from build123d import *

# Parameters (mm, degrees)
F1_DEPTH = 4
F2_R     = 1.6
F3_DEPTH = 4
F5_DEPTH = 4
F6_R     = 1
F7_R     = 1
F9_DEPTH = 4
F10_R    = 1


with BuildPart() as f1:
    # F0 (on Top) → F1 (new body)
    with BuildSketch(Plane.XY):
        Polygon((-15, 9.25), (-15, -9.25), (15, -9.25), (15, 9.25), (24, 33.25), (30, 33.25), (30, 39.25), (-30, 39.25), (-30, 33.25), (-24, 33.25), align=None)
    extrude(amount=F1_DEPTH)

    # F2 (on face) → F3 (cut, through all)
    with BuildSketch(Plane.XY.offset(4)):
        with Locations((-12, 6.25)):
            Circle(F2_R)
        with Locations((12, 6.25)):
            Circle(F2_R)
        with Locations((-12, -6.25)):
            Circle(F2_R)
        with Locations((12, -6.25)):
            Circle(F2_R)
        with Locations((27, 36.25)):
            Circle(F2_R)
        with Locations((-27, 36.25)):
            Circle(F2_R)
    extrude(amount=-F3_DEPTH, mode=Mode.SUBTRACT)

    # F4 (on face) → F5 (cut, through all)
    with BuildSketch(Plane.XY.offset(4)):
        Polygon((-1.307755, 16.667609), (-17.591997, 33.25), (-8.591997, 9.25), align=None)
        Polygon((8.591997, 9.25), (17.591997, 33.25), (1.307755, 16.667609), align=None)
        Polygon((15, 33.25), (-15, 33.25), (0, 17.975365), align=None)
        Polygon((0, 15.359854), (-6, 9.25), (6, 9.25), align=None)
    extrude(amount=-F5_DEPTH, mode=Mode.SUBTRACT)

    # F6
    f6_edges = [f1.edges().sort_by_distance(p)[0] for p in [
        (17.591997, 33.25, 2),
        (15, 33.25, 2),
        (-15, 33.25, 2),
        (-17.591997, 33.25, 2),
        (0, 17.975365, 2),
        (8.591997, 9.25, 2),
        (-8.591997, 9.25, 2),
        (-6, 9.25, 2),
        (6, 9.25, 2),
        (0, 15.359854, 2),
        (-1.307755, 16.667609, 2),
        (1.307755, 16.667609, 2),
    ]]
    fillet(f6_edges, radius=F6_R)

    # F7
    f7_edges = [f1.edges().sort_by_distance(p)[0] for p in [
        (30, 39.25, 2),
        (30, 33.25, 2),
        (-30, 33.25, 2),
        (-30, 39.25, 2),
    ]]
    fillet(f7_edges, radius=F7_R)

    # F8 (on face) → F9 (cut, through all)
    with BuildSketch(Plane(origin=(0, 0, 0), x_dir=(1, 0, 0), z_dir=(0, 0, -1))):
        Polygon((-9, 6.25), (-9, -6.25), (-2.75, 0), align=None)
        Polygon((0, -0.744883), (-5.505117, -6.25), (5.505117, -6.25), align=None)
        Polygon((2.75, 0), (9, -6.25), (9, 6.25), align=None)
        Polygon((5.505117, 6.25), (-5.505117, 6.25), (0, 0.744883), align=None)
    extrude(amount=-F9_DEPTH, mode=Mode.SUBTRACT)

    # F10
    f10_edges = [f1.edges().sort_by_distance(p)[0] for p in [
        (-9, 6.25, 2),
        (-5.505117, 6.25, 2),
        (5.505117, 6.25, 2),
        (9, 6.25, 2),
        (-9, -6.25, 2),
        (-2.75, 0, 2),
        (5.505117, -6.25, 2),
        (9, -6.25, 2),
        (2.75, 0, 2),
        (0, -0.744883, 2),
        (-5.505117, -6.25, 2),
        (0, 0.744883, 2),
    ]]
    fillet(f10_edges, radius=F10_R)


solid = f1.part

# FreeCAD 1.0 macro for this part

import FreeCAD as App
import Part
import Sketcher


def edges_at(feature, points):
    """Names of the edges that pass closest to the given points."""
    edges = feature.Shape.Edges
    near = lambda p: min(range(len(edges)), key=lambda i: edges[i].distToShape(Part.Vertex(*p))[0])
    return sorted({f"Edge{near(p) + 1}" for p in points})

doc = App.newDocument("Part")
body = doc.addObject("PartDesign::Body", "Body")

# Sketch on XY plane
sketch1 = body.newObject("Sketcher::SketchObject", "Sketch")
sketch1.AttachmentSupport = (doc.getObject("XY_Plane"), [""])
sketch1.MapMode = "FlatFace"
sketch1.addGeometry(Part.LineSegment(App.Vector(-15, 9, 0), App.Vector(-15, -9, 0)), False)
sketch1.addGeometry(Part.LineSegment(App.Vector(-15, -9, 0), App.Vector(15, -9, 0)), False)
sketch1.addGeometry(Part.LineSegment(App.Vector(15, -9, 0), App.Vector(15, 9, 0)), False)
sketch1.addGeometry(Part.LineSegment(App.Vector(15, 9, 0), App.Vector(24, 33, 0)), False)
sketch1.addGeometry(Part.LineSegment(App.Vector(24, 33, 0), App.Vector(30, 33, 0)), False)
sketch1.addGeometry(Part.LineSegment(App.Vector(30, 33, 0), App.Vector(30, 39, 0)), False)
sketch1.addGeometry(Part.LineSegment(App.Vector(30, 39, 0), App.Vector(-30, 39, 0)), False)
sketch1.addGeometry(Part.LineSegment(App.Vector(-30, 39, 0), App.Vector(-30, 33, 0)), False)
sketch1.addGeometry(Part.LineSegment(App.Vector(-30, 33, 0), App.Vector(-24, 33, 0)), False)
sketch1.addGeometry(Part.LineSegment(App.Vector(-24, 33, 0), App.Vector(-15, 9, 0)), False)
sketch1.addConstraint(Sketcher.Constraint("Coincident", 0, 2, 1, 1))
sketch1.addConstraint(Sketcher.Constraint("Coincident", 1, 2, 2, 1))
sketch1.addConstraint(Sketcher.Constraint("Coincident", 2, 2, 3, 1))
sketch1.addConstraint(Sketcher.Constraint("Coincident", 3, 2, 4, 1))
sketch1.addConstraint(Sketcher.Constraint("Coincident", 4, 2, 5, 1))
sketch1.addConstraint(Sketcher.Constraint("Coincident", 5, 2, 6, 1))
sketch1.addConstraint(Sketcher.Constraint("Coincident", 6, 2, 7, 1))
sketch1.addConstraint(Sketcher.Constraint("Coincident", 7, 2, 8, 1))
sketch1.addConstraint(Sketcher.Constraint("Coincident", 8, 2, 9, 1))
sketch1.addConstraint(Sketcher.Constraint("Coincident", 9, 2, 0, 1))
sketch1.addConstraint(Sketcher.Constraint("Vertical", 0))
sketch1.addConstraint(Sketcher.Constraint("Horizontal", 1))
sketch1.addConstraint(Sketcher.Constraint("Vertical", 2))
sketch1.addConstraint(Sketcher.Constraint("Horizontal", 4))
sketch1.addConstraint(Sketcher.Constraint("Vertical", 5))
sketch1.addConstraint(Sketcher.Constraint("Horizontal", 6))
sketch1.addConstraint(Sketcher.Constraint("Vertical", 7))
sketch1.addConstraint(Sketcher.Constraint("Horizontal", 8))
sketch1.addConstraint(Sketcher.Constraint("Symmetric", 0, 2, 2, 2, -1, 1))
sketch1.addConstraint(Sketcher.Constraint("Symmetric", 4, 2, 7, 2, -2))
sketch1.addConstraint(Sketcher.Constraint("Horizontal", 2, 2, 9, 2))
sketch1.addConstraint(Sketcher.Constraint("Equal", 4, 8))
sketch1.addConstraint(Sketcher.Constraint("Equal", 8, 5))
sketch1.addConstraint(Sketcher.Constraint("DistanceX", 1, 1, 1, 2, 30.0))
sketch1.addConstraint(Sketcher.Constraint("DistanceX", 4, 1, 4, 2, 6.0))
sketch1.addConstraint(Sketcher.Constraint("DistanceX", 6, 2, 6, 1, 60.0))
sketch1.addConstraint(Sketcher.Constraint("DistanceY", 0, 2, 0, 1, 18.5))
sketch1.addConstraint(Sketcher.Constraint("DistanceY", 2, 2, 3, 2, 24.0))
pad1 = body.newObject("PartDesign::Pad", "Pad")
pad1.Profile = sketch1
pad1.Length = 4

# Sketch on XY plane
sketch2 = body.newObject("Sketcher::SketchObject", "Sketch001")
sketch2.AttachmentSupport = (doc.getObject("XY_Plane"), [""])
sketch2.MapMode = "FlatFace"
sketch2.AttachmentOffset = App.Placement(App.Vector(0, 0, 4), App.Rotation())
sketch2.addGeometry(Part.Circle(App.Vector(-12, 6.2, 0), App.Vector(0, 0, 1), 1.6), False)
sketch2.addGeometry(Part.Circle(App.Vector(12, 6.2, 0), App.Vector(0, 0, 1), 1.6), False)
sketch2.addGeometry(Part.Circle(App.Vector(-12, -6.2, 0), App.Vector(0, 0, 1), 1.6), False)
sketch2.addGeometry(Part.Circle(App.Vector(12, -6.2, 0), App.Vector(0, 0, 1), 1.6), False)
sketch2.addGeometry(Part.Circle(App.Vector(27, 36.2, 0), App.Vector(0, 0, 1), 1.6), False)
sketch2.addGeometry(Part.Circle(App.Vector(-27, 36.2, 0), App.Vector(0, 0, 1), 1.6), False)
sketch2.addConstraint(Sketcher.Constraint("Equal", 0, 1))
sketch2.addConstraint(Sketcher.Constraint("Equal", 1, 2))
sketch2.addConstraint(Sketcher.Constraint("Equal", 2, 3))
sketch2.addConstraint(Sketcher.Constraint("Equal", 3, 4))
sketch2.addConstraint(Sketcher.Constraint("Equal", 4, 5))
sketch2.addConstraint(Sketcher.Constraint("Symmetric", 1, 3, 2, 3, -1, 1))
sketch2.addConstraint(Sketcher.Constraint("Symmetric", 0, 3, 3, 3, -1, 1))
sketch2.addConstraint(Sketcher.Constraint("Symmetric", 0, 3, 1, 3, -2))
sketch2.addConstraint(Sketcher.Constraint("Symmetric", 4, 3, 5, 3, -2))
sketch2.addConstraint(Sketcher.Constraint("Diameter", 0, 3.2))
sketch2.addConstraint(Sketcher.Constraint("DistanceX", 0, 3, -1, 1, 12.0))
sketch2.addConstraint(Sketcher.Constraint("DistanceX", -1, 1, 4, 3, 27.0))
sketch2.addConstraint(Sketcher.Constraint("DistanceY", 1, 3, 4, 3, 30.0))
sketch2.addConstraint(Sketcher.Constraint("DistanceY", 2, 3, 0, 3, 12.5))
pocket1 = body.newObject("PartDesign::Pocket", "Pocket")
pocket1.Profile = sketch2
pocket1.Type = "ThroughAll"

# Sketch on XY plane
sketch3 = body.newObject("Sketcher::SketchObject", "Sketch002")
sketch3.AttachmentSupport = (doc.getObject("XY_Plane"), [""])
sketch3.MapMode = "FlatFace"
sketch3.AttachmentOffset = App.Placement(App.Vector(0, 0, 4), App.Rotation())
sketch3.addGeometry(Part.LineSegment(App.Vector(-1, 17, 0), App.Vector(-18, 33, 0)), False)
sketch3.addGeometry(Part.LineSegment(App.Vector(-18, 33, 0), App.Vector(-9, 9, 0)), False)
sketch3.addGeometry(Part.LineSegment(App.Vector(-9, 9, 0), App.Vector(-1, 17, 0)), False)
sketch3.addGeometry(Part.LineSegment(App.Vector(9, 9, 0), App.Vector(18, 33, 0)), False)
sketch3.addGeometry(Part.LineSegment(App.Vector(18, 33, 0), App.Vector(1, 17, 0)), False)
sketch3.addGeometry(Part.LineSegment(App.Vector(1, 17, 0), App.Vector(9, 9, 0)), False)
sketch3.addGeometry(Part.LineSegment(App.Vector(15, 33, 0), App.Vector(-15, 33, 0)), False)
sketch3.addGeometry(Part.LineSegment(App.Vector(-15, 33, 0), App.Vector(0, 18, 0)), False)
sketch3.addGeometry(Part.LineSegment(App.Vector(0, 18, 0), App.Vector(15, 33, 0)), False)
sketch3.addGeometry(Part.LineSegment(App.Vector(0, 15, 0), App.Vector(-6, 9, 0)), False)
sketch3.addGeometry(Part.LineSegment(App.Vector(-6, 9, 0), App.Vector(6, 9, 0)), False)
sketch3.addGeometry(Part.LineSegment(App.Vector(6, 9, 0), App.Vector(0, 15, 0)), False)
sketch3.addConstraint(Sketcher.Constraint("Coincident", 0, 2, 1, 1))
sketch3.addConstraint(Sketcher.Constraint("Coincident", 1, 2, 2, 1))
sketch3.addConstraint(Sketcher.Constraint("Coincident", 2, 2, 0, 1))
sketch3.addConstraint(Sketcher.Constraint("Coincident", 3, 2, 4, 1))
sketch3.addConstraint(Sketcher.Constraint("Coincident", 4, 2, 5, 1))
sketch3.addConstraint(Sketcher.Constraint("Coincident", 5, 2, 3, 1))
sketch3.addConstraint(Sketcher.Constraint("Coincident", 6, 2, 7, 1))
sketch3.addConstraint(Sketcher.Constraint("Coincident", 7, 2, 8, 1))
sketch3.addConstraint(Sketcher.Constraint("Coincident", 8, 2, 6, 1))
sketch3.addConstraint(Sketcher.Constraint("Coincident", 9, 2, 10, 1))
sketch3.addConstraint(Sketcher.Constraint("Coincident", 10, 2, 11, 1))
sketch3.addConstraint(Sketcher.Constraint("Coincident", 11, 2, 9, 1))
sketch3.addConstraint(Sketcher.Constraint("Horizontal", 6))
sketch3.addConstraint(Sketcher.Constraint("Horizontal", 10))
sketch3.addConstraint(Sketcher.Constraint("Symmetric", 0, 2, 3, 2, -2))
sketch3.addConstraint(Sketcher.Constraint("Symmetric", 2, 2, 4, 2, -2))
sketch3.addConstraint(Sketcher.Constraint("Symmetric", 1, 2, 5, 2, -2))
sketch3.addConstraint(Sketcher.Constraint("PointOnObject", 7, 2, -2))
sketch3.addConstraint(Sketcher.Constraint("PointOnObject", 11, 2, -2))
sketch3.addConstraint(Sketcher.Constraint("Parallel", 2, 4))
sketch3.addConstraint(Sketcher.Constraint("Parallel", 5, 7))
sketch3.addConstraint(Sketcher.Constraint("Parallel", 4, 8))
sketch3.addConstraint(Sketcher.Constraint("Parallel", 8, 9))
sketch3.addConstraint(Sketcher.Constraint("Parallel", 7, 11))
sketch3.addConstraint(Sketcher.Constraint("Horizontal", 3, 2, 6, 2))
sketch3.addConstraint(Sketcher.Constraint("Horizontal", 5, 2, 9, 2))
sketch3.addConstraint(Sketcher.Constraint("DistanceX", 6, 2, 6, 1, 30.0))
sketch3.addConstraint(Sketcher.Constraint("DistanceX", 10, 1, 10, 2, 12.0))
sketch3.addConstraint(Sketcher.Constraint("DistanceX", 0, 2, 1, 2, 9.0))
sketch3.addConstraint(Sketcher.Constraint("DistanceY", 1, 2, 0, 2, 24.0))
sketch3.addConstraint(Sketcher.Constraint("DistanceY", -1, 1, 0, 2, 33.25))
sketch3.addConstraint(Sketcher.Constraint("Distance", 7, 21.408281))
sketch3.addConstraint(Sketcher.Constraint("DistanceX", 2, 2, 3, 2, 18.899752))
pocket2 = body.newObject("PartDesign::Pocket", "Pocket001")
pocket2.Profile = sketch3
pocket2.Type = "ThroughAll"
doc.recompute()

fillet = body.newObject("PartDesign::Fillet", "Fillet")
fillet.Base = (pocket2, edges_at(pocket2, [
    (17.592, 33.25, 2),
    (15, 33.25, 2),
    (-15, 33.25, 2),
    (-17.592, 33.25, 2),
    (0, 17.975, 2),
    (8.592, 9.25, 2),
    (-8.592, 9.25, 2),
    (-6, 9.25, 2),
    (6, 9.25, 2),
    (0, 15.36, 2),
    (-1.308, 16.668, 2),
    (1.308, 16.668, 2),
]))
fillet.Radius = 1
doc.recompute()

fillet2 = body.newObject("PartDesign::Fillet", "Fillet001")
fillet2.Base = (fillet, edges_at(fillet, [
    (30, 39.25, 2),
    (30, 33.25, 2),
    (-30, 33.25, 2),
    (-30, 39.25, 2),
]))
fillet2.Radius = 1

# Sketch on XY plane
sketch4 = body.newObject("Sketcher::SketchObject", "Sketch003")
sketch4.AttachmentSupport = (doc.getObject("XY_Plane"), [""])
sketch4.MapMode = "FlatFace"
sketch4.addGeometry(Part.LineSegment(App.Vector(-9, -6, 0), App.Vector(-9, 6, 0)), False)
sketch4.addGeometry(Part.LineSegment(App.Vector(-9, 6, 0), App.Vector(-3, 0, 0)), False)
sketch4.addGeometry(Part.LineSegment(App.Vector(-3, 0, 0), App.Vector(-9, -6, 0)), False)
sketch4.addGeometry(Part.LineSegment(App.Vector(0, 1, 0), App.Vector(-6, 6, 0)), False)
sketch4.addGeometry(Part.LineSegment(App.Vector(-6, 6, 0), App.Vector(6, 6, 0)), False)
sketch4.addGeometry(Part.LineSegment(App.Vector(6, 6, 0), App.Vector(0, 1, 0)), False)
sketch4.addGeometry(Part.LineSegment(App.Vector(3, 0, 0), App.Vector(9, 6, 0)), False)
sketch4.addGeometry(Part.LineSegment(App.Vector(9, 6, 0), App.Vector(9, -6, 0)), False)
sketch4.addGeometry(Part.LineSegment(App.Vector(9, -6, 0), App.Vector(3, 0, 0)), False)
sketch4.addGeometry(Part.LineSegment(App.Vector(6, -6, 0), App.Vector(-6, -6, 0)), False)
sketch4.addGeometry(Part.LineSegment(App.Vector(-6, -6, 0), App.Vector(0, -1, 0)), False)
sketch4.addGeometry(Part.LineSegment(App.Vector(0, -1, 0), App.Vector(6, -6, 0)), False)
sketch4.addConstraint(Sketcher.Constraint("Coincident", 0, 2, 1, 1))
sketch4.addConstraint(Sketcher.Constraint("Coincident", 1, 2, 2, 1))
sketch4.addConstraint(Sketcher.Constraint("Coincident", 2, 2, 0, 1))
sketch4.addConstraint(Sketcher.Constraint("Coincident", 3, 2, 4, 1))
sketch4.addConstraint(Sketcher.Constraint("Coincident", 4, 2, 5, 1))
sketch4.addConstraint(Sketcher.Constraint("Coincident", 5, 2, 3, 1))
sketch4.addConstraint(Sketcher.Constraint("Coincident", 6, 2, 7, 1))
sketch4.addConstraint(Sketcher.Constraint("Coincident", 7, 2, 8, 1))
sketch4.addConstraint(Sketcher.Constraint("Coincident", 8, 2, 6, 1))
sketch4.addConstraint(Sketcher.Constraint("Coincident", 9, 2, 10, 1))
sketch4.addConstraint(Sketcher.Constraint("Coincident", 10, 2, 11, 1))
sketch4.addConstraint(Sketcher.Constraint("Coincident", 11, 2, 9, 1))
sketch4.addConstraint(Sketcher.Constraint("Vertical", 0))
sketch4.addConstraint(Sketcher.Constraint("Horizontal", 4))
sketch4.addConstraint(Sketcher.Constraint("Vertical", 7))
sketch4.addConstraint(Sketcher.Constraint("Horizontal", 9))
sketch4.addConstraint(Sketcher.Constraint("Symmetric", 2, 2, 6, 2, -1, 1))
sketch4.addConstraint(Sketcher.Constraint("Symmetric", 1, 2, 8, 2, -1, 1))
sketch4.addConstraint(Sketcher.Constraint("Symmetric", 4, 2, 9, 2, -1, 1))
sketch4.addConstraint(Sketcher.Constraint("Symmetric", 5, 2, 10, 2, -1, 1))
sketch4.addConstraint(Sketcher.Constraint("PointOnObject", 1, 2, -1))
sketch4.addConstraint(Sketcher.Constraint("PointOnObject", 5, 2, -2))
sketch4.addConstraint(Sketcher.Constraint("Perpendicular", 1, 2))
sketch4.addConstraint(Sketcher.Constraint("Perpendicular", 2, 3))
sketch4.addConstraint(Sketcher.Constraint("Perpendicular", 3, 5))
sketch4.addConstraint(Sketcher.Constraint("Perpendicular", 6, 8))
sketch4.addConstraint(Sketcher.Constraint("Perpendicular", 10, 11))
sketch4.addConstraint(Sketcher.Constraint("Horizontal", 0, 2, 3, 2))
sketch4.addConstraint(Sketcher.Constraint("Horizontal", 4, 2, 6, 2))
sketch4.addConstraint(Sketcher.Constraint("DistanceY", 0, 1, 0, 2, 12.5))
sketch4.addConstraint(Sketcher.Constraint("DistanceX", 0, 2, -1, 1, 9.0))
sketch4.addConstraint(Sketcher.Constraint("Distance", 3, 7.785411))
pocket3 = body.newObject("PartDesign::Pocket", "Pocket002")
pocket3.Profile = sketch4
pocket3.Type = "ThroughAll"
pocket3.Reversed = True
doc.recompute()

fillet3 = body.newObject("PartDesign::Fillet", "Fillet002")
fillet3.Base = (pocket3, edges_at(pocket3, [
    (-9, 6.25, 2),
    (-5.505, 6.25, 2),
    (5.505, 6.25, 2),
    (9, 6.25, 2),
    (-9, -6.25, 2),
    (-2.75, 0, 2),
    (5.505, -6.25, 2),
    (9, -6.25, 2),
    (2.75, 0, 2),
    (0, -0.745, 2),
    (-5.505, -6.25, 2),
    (0, 0.745, 2),
]))
fillet3.Radius = 1

doc.recompute()
